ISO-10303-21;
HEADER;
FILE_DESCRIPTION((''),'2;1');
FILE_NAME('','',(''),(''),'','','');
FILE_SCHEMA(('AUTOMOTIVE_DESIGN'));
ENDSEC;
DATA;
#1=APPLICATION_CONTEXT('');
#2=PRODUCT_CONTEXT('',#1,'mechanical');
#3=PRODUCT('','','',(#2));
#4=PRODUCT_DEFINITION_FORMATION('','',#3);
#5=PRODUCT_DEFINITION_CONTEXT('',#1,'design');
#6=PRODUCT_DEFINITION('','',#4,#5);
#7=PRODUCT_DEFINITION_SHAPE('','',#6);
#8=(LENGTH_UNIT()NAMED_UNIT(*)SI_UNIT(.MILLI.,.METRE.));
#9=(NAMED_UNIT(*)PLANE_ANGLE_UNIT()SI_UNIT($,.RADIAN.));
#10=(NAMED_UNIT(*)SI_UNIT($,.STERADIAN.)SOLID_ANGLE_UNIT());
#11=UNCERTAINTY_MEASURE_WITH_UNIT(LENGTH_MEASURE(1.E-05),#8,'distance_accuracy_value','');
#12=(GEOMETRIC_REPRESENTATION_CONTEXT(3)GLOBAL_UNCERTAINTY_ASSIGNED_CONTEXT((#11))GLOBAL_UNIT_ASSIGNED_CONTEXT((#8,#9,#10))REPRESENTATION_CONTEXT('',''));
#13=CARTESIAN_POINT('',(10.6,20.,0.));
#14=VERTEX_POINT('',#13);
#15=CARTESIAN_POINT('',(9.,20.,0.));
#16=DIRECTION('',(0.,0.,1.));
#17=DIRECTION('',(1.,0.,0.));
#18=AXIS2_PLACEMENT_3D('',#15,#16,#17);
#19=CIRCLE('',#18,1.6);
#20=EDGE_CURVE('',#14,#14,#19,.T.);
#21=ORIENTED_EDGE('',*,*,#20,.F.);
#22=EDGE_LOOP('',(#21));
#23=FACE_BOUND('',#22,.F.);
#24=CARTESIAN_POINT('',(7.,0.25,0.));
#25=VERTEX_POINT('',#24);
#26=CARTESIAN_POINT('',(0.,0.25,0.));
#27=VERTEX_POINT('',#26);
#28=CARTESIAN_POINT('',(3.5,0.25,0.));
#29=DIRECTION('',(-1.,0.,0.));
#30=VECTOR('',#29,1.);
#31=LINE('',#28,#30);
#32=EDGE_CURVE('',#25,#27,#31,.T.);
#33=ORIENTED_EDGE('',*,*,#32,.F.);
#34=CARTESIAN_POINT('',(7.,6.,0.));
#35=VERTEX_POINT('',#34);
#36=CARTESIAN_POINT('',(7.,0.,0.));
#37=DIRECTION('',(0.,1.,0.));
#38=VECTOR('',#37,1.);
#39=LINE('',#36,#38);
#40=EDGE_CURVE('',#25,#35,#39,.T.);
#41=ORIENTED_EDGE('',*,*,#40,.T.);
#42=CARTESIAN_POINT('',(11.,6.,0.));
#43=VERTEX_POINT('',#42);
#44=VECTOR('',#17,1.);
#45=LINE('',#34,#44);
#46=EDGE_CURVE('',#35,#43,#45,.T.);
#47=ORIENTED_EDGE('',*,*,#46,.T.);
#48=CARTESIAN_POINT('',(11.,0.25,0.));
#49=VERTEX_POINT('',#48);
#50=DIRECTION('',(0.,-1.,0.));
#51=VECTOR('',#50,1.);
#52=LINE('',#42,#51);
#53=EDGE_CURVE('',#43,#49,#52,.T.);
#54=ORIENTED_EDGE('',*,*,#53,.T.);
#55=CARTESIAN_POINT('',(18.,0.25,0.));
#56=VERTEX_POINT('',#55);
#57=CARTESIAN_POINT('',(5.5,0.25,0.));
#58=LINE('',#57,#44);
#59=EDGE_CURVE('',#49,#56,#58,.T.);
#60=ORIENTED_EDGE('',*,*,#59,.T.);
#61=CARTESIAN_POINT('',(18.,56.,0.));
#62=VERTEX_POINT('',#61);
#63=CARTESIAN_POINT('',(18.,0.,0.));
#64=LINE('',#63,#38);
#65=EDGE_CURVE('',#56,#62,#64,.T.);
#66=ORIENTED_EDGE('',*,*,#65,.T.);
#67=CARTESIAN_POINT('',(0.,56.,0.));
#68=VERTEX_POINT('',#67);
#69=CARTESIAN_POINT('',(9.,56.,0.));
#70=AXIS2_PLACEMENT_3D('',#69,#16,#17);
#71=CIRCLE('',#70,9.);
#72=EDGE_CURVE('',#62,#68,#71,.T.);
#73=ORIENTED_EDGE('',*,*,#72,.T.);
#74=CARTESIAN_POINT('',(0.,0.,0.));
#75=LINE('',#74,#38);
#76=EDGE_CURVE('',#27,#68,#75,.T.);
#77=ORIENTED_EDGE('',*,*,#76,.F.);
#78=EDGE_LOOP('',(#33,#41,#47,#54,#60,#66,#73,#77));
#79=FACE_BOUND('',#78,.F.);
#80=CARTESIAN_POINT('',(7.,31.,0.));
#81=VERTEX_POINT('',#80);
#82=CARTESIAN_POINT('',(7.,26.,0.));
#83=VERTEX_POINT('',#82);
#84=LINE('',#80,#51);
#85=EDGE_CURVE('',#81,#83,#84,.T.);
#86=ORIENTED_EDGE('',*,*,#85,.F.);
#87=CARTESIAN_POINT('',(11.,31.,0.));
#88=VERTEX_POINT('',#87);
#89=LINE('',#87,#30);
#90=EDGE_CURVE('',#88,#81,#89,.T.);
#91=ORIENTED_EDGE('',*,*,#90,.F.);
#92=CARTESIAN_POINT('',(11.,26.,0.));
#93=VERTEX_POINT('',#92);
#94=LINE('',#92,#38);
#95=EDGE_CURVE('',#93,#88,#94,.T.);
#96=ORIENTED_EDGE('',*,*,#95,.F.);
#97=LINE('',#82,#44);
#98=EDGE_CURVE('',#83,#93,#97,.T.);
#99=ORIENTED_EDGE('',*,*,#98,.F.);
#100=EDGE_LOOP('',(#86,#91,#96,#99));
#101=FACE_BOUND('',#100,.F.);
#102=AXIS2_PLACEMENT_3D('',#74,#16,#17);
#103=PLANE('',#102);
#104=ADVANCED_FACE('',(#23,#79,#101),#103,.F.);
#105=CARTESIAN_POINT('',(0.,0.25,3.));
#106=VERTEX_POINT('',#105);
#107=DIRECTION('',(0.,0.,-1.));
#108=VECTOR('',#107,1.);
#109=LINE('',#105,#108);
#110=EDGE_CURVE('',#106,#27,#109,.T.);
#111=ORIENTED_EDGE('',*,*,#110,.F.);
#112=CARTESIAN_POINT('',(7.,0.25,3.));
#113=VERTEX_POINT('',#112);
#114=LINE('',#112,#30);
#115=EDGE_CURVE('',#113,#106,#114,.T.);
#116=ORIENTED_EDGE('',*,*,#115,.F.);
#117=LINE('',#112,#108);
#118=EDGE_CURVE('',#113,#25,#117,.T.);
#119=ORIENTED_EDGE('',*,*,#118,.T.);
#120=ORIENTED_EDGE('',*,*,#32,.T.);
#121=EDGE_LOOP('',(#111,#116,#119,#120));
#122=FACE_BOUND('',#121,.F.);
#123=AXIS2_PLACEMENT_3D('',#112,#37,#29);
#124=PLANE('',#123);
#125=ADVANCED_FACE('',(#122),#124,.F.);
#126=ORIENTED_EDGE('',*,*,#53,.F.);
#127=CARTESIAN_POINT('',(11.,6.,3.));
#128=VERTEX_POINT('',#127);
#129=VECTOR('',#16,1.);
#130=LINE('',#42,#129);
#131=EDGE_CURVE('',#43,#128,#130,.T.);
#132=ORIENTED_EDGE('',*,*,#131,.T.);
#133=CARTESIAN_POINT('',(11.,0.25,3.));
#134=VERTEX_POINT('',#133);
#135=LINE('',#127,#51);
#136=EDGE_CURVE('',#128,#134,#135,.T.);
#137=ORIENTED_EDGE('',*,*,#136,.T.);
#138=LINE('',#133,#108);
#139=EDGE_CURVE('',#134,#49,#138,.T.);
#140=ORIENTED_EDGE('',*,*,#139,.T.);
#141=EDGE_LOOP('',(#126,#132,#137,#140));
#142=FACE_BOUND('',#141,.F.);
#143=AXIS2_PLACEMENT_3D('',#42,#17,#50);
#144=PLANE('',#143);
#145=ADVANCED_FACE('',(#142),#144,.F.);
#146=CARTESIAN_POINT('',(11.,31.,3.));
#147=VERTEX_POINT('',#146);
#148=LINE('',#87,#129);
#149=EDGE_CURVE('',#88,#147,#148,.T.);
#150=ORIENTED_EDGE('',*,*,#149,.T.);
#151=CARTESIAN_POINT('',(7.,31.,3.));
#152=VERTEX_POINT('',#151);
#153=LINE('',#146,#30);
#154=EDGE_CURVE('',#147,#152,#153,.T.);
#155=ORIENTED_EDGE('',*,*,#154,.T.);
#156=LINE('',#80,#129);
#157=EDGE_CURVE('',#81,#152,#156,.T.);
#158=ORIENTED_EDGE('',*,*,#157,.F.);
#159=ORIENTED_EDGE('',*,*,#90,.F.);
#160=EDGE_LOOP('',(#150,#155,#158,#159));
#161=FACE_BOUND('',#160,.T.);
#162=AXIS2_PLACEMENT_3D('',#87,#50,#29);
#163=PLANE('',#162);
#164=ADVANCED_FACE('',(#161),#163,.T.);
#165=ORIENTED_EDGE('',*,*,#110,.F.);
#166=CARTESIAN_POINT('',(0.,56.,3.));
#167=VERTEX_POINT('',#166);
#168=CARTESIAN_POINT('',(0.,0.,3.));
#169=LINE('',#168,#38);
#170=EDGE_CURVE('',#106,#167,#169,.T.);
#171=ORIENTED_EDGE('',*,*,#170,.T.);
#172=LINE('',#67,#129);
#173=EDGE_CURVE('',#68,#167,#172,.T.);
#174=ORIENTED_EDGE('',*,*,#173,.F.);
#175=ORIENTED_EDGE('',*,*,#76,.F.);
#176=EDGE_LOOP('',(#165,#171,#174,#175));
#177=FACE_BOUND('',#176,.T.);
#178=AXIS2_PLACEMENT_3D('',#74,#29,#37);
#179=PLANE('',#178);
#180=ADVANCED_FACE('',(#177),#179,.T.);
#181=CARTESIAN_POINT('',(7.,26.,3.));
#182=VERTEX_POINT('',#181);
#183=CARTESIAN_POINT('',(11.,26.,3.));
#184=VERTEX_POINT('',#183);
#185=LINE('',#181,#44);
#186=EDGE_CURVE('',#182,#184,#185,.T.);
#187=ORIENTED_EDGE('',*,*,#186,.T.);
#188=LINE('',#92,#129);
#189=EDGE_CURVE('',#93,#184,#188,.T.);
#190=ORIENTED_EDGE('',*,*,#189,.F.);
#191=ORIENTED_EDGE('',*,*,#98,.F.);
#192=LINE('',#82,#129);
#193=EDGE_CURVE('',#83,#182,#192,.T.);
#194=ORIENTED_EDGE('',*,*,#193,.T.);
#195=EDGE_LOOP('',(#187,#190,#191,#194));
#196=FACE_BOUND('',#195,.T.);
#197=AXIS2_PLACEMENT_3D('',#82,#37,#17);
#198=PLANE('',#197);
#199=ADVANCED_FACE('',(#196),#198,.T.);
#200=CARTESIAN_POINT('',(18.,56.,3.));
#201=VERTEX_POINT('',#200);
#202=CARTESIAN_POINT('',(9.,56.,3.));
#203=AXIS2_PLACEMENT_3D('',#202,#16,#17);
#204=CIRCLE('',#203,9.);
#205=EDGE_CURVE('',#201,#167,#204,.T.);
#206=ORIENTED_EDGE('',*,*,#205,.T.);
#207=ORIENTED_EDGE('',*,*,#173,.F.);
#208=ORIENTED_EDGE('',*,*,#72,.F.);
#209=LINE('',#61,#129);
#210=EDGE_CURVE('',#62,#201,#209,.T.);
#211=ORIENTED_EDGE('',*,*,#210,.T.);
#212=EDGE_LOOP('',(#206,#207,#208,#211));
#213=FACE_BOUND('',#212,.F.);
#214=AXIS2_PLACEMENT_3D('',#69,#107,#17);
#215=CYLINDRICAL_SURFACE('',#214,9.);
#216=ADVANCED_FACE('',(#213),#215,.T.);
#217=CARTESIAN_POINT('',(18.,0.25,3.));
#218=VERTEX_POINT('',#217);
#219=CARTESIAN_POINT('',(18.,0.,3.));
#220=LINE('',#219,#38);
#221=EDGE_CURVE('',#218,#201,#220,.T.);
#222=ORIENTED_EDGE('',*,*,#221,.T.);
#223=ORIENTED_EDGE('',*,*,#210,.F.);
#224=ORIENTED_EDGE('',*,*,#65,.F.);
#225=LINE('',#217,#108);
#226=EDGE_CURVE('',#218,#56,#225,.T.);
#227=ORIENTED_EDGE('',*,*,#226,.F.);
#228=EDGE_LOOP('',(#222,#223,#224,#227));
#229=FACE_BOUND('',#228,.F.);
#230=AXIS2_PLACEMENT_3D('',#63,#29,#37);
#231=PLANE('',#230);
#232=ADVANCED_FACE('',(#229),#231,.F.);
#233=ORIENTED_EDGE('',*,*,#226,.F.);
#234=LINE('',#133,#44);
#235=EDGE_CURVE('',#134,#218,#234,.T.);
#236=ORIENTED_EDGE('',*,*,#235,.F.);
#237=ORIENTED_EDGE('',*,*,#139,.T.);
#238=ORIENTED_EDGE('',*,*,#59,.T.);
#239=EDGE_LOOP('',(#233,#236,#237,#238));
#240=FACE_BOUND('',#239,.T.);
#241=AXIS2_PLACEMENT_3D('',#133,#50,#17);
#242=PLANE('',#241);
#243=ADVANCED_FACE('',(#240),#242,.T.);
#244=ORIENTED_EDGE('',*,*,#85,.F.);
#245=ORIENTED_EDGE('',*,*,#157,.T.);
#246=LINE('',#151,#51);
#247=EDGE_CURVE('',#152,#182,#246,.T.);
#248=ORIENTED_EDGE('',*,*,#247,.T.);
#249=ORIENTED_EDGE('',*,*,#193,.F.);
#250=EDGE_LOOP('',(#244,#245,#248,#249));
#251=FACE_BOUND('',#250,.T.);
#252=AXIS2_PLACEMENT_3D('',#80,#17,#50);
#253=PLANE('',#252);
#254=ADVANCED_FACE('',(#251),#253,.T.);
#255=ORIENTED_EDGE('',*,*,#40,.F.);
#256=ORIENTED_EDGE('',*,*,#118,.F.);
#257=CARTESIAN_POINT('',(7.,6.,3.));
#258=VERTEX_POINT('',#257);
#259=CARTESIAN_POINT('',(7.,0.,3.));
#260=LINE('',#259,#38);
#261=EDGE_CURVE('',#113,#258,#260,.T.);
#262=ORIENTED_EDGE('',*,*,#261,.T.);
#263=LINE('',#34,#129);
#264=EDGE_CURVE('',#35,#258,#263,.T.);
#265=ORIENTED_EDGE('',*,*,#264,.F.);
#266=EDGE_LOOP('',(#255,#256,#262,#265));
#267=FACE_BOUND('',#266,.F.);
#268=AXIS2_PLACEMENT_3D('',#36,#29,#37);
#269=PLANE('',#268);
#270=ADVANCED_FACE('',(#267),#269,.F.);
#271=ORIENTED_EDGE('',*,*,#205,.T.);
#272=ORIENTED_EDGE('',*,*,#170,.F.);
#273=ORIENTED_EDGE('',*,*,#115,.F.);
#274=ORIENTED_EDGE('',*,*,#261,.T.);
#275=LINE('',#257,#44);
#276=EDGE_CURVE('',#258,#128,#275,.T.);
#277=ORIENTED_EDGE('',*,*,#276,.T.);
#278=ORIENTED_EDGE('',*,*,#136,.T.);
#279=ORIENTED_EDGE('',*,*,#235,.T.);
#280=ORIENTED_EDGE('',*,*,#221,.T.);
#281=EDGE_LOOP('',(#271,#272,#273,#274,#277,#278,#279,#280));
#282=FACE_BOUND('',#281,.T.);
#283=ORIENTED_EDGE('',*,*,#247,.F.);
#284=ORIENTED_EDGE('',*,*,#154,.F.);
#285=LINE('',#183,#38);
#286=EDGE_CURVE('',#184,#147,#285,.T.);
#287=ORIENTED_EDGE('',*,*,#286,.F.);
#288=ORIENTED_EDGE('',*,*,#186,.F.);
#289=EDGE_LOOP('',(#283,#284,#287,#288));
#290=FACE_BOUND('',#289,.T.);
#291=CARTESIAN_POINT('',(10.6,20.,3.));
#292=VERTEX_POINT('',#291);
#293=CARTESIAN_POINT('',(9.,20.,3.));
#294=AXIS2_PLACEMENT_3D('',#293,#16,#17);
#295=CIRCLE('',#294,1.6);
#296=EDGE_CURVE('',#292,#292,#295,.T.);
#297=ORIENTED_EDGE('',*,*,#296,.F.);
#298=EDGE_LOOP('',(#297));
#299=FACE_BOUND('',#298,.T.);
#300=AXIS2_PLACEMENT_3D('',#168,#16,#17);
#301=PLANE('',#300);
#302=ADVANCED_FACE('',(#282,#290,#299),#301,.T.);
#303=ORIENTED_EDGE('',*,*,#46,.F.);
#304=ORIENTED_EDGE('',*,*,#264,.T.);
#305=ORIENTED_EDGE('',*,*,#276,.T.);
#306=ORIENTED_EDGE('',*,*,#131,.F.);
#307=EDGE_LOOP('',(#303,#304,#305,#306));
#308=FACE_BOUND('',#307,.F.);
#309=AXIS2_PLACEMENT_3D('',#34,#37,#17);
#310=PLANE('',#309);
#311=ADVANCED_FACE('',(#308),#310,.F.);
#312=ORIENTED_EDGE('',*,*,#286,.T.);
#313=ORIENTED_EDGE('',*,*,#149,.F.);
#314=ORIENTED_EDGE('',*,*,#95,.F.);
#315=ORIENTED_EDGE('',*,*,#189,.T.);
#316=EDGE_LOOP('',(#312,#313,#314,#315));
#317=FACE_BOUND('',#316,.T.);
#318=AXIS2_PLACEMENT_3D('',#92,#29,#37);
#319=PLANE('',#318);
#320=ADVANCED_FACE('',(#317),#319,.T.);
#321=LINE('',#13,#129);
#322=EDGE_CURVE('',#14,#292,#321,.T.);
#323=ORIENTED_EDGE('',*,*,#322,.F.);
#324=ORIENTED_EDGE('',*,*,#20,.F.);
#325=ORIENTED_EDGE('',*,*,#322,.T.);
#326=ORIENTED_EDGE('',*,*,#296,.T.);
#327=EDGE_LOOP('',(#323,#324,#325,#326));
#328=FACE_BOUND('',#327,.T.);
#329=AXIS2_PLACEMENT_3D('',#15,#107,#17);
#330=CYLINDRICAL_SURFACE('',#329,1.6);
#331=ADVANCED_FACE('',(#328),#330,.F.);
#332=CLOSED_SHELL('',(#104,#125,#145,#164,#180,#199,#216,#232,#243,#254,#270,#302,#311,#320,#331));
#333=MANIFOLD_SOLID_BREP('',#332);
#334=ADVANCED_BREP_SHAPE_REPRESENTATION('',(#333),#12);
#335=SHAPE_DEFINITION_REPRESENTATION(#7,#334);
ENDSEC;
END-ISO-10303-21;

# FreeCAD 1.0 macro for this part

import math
import FreeCAD as App
import Part
import Sketcher
from FreeCAD import Vector

doc = App.newDocument("Part")
body = doc.addObject("PartDesign::Body", "Body")

# Sketch on XY plane
sketch1 = body.newObject("Sketcher::SketchObject", "Sketch")
sketch1.AttachmentSupport = (doc.getObject("XY_Plane"), [""])
sketch1.MapMode = "FlatFace"
sketch1.addGeometry([
    Part.LineSegment(Vector(0, 56, 0), Vector(0, 0, 0)),  # 0
    Part.LineSegment(Vector(0, 0, 0), Vector(7, 0, 0)),  # 1
    Part.LineSegment(Vector(7, 0, 0), Vector(7, 6, 0)),  # 2
    Part.LineSegment(Vector(7, 6, 0), Vector(11, 6, 0)),  # 3
    Part.LineSegment(Vector(11, 6, 0), Vector(11, 0, 0)),  # 4
    Part.LineSegment(Vector(11, 0, 0), Vector(18, 0, 0)),  # 5
    Part.LineSegment(Vector(18, 0, 0), Vector(18, 56, 0)),  # 6
    Part.ArcOfCircle(Part.Circle(Vector(9, 56, 0), Vector(0, 0, 1), 9), math.radians(0), math.radians(180)),  # 7
    Part.Circle(Vector(9, 20, 0), Vector(0, 0, 1), 1.6),  # 8
    Part.LineSegment(Vector(11, 26, 0), Vector(7, 26, 0)),  # 9
    Part.LineSegment(Vector(7, 26, 0), Vector(7, 31, 0)),  # 10
    Part.LineSegment(Vector(7, 31, 0), Vector(11, 31, 0)),  # 11
    Part.LineSegment(Vector(11, 31, 0), Vector(11, 26, 0)),  # 12
], False)
sketch1.addConstraint([
    Sketcher.Constraint("Coincident", 0, 2, 1, 1),
    Sketcher.Constraint("Coincident", 1, 2, 2, 1),
    Sketcher.Constraint("Coincident", 2, 2, 3, 1),
    Sketcher.Constraint("Coincident", 3, 2, 4, 1),
    Sketcher.Constraint("Coincident", 4, 2, 5, 1),
    Sketcher.Constraint("Coincident", 5, 2, 6, 1),
    Sketcher.Constraint("Tangent", 6, 2, 7, 1),
    Sketcher.Constraint("Tangent", 7, 2, 0, 1),
    Sketcher.Constraint("Coincident", 9, 2, 10, 1),
    Sketcher.Constraint("Coincident", 10, 2, 11, 1),
    Sketcher.Constraint("Coincident", 11, 2, 12, 1),
    Sketcher.Constraint("Coincident", 12, 2, 9, 1),
    Sketcher.Constraint("Vertical", 0),
    Sketcher.Constraint("Horizontal", 1),
    Sketcher.Constraint("Vertical", 2),
    Sketcher.Constraint("Horizontal", 3),
    Sketcher.Constraint("Vertical", 4),
    Sketcher.Constraint("Horizontal", 5),
    Sketcher.Constraint("Vertical", 6),
    Sketcher.Constraint("Horizontal", 9),
    Sketcher.Constraint("Vertical", 10),
    Sketcher.Constraint("Horizontal", 11),
    Sketcher.Constraint("Vertical", 12),
    Sketcher.Constraint("Coincident", 0, 2, -1, 1),
    Sketcher.Constraint("PointOnObject", 4, 2, -1),
    Sketcher.Constraint("Vertical", 7, 3, 8, 3),
    Sketcher.Constraint("Vertical", 2, 2, 9, 2),
    Sketcher.Constraint("Vertical", 4, 2, 11, 2),
    Sketcher.Constraint("Equal", 1, 5),
    Sketcher.Constraint("Radius", 7, 9.0),
    Sketcher.Constraint("Diameter", 8, 3.2),
    Sketcher.Constraint("DistanceX", 3, 1, 3, 2, 4.0),
    Sketcher.Constraint("DistanceY", 2, 1, 2, 2, 6.0),
    Sketcher.Constraint("DistanceY", 10, 1, 10, 2, 5.0),
    Sketcher.Constraint("DistanceY", -1, 1, 8, 3, 20.0),
    Sketcher.Constraint("DistanceY", -1, 1, 9, 2, 26.0),
    Sketcher.Constraint("DistanceY", 0, 2, 0, 1, 56.0),
])
pad1 = body.newObject("PartDesign::Pad", "Pad")
pad1.Profile = sketch1
pad1.Length = 3

# Sketch on XY plane
sketch2 = body.newObject("Sketcher::SketchObject", "Sketch001")
sketch2.AttachmentSupport = (doc.getObject("XY_Plane"), [""])
sketch2.MapMode = "FlatFace"
sketch2.AttachmentOffset = App.Placement(Vector(0, 0, 3), App.Rotation())
sketch2.addGeometry([
    Part.LineSegment(Vector(0, 0.25, 0), Vector(0, 0, 0)),  # 0
    Part.LineSegment(Vector(0, 0, 0), Vector(7, 0, 0)),  # 1
    Part.LineSegment(Vector(7, 0, 0), Vector(7, 0.25, 0)),  # 2
    Part.LineSegment(Vector(7, 0.25, 0), Vector(0, 0.25, 0)),  # 3
    Part.LineSegment(Vector(11, 0.25, 0), Vector(11, 0, 0)),  # 4
    Part.LineSegment(Vector(11, 0, 0), Vector(18, 0, 0)),  # 5
    Part.LineSegment(Vector(18, 0, 0), Vector(18, 0.25, 0)),  # 6
    Part.LineSegment(Vector(18, 0.25, 0), Vector(11, 0.25, 0)),  # 7
], False)
sketch2.addConstraint([
    Sketcher.Constraint("Coincident", 0, 2, 1, 1),
    Sketcher.Constraint("Coincident", 1, 2, 2, 1),
    Sketcher.Constraint("Coincident", 2, 2, 3, 1),
    Sketcher.Constraint("Coincident", 3, 2, 0, 1),
    Sketcher.Constraint("Coincident", 4, 2, 5, 1),
    Sketcher.Constraint("Coincident", 5, 2, 6, 1),
    Sketcher.Constraint("Coincident", 6, 2, 7, 1),
    Sketcher.Constraint("Coincident", 7, 2, 4, 1),
    Sketcher.Constraint("Vertical", 0),
    Sketcher.Constraint("Horizontal", 1),
    Sketcher.Constraint("Vertical", 2),
    Sketcher.Constraint("Horizontal", 3),
    Sketcher.Constraint("Vertical", 4),
    Sketcher.Constraint("Horizontal", 5),
    Sketcher.Constraint("Vertical", 6),
    Sketcher.Constraint("Horizontal", 7),
    Sketcher.Constraint("Coincident", 0, 2, -1, 1),
    Sketcher.Constraint("PointOnObject", 4, 2, -1),
    Sketcher.Constraint("Horizontal", 3, 2, 6, 2),
    Sketcher.Constraint("Equal", 3, 5),
    Sketcher.Constraint("DistanceY", 0, 2, 0, 1, 0.25),
    Sketcher.Constraint("DistanceX", 1, 1, 1, 2, 7.0),
    Sketcher.Constraint("DistanceX", -1, 1, 4, 2, 11.0),
])
pocket1 = body.newObject("PartDesign::Pocket", "Pocket")
pocket1.Profile = sketch2
pocket1.Type = "ThroughAll"

doc.recompute()
